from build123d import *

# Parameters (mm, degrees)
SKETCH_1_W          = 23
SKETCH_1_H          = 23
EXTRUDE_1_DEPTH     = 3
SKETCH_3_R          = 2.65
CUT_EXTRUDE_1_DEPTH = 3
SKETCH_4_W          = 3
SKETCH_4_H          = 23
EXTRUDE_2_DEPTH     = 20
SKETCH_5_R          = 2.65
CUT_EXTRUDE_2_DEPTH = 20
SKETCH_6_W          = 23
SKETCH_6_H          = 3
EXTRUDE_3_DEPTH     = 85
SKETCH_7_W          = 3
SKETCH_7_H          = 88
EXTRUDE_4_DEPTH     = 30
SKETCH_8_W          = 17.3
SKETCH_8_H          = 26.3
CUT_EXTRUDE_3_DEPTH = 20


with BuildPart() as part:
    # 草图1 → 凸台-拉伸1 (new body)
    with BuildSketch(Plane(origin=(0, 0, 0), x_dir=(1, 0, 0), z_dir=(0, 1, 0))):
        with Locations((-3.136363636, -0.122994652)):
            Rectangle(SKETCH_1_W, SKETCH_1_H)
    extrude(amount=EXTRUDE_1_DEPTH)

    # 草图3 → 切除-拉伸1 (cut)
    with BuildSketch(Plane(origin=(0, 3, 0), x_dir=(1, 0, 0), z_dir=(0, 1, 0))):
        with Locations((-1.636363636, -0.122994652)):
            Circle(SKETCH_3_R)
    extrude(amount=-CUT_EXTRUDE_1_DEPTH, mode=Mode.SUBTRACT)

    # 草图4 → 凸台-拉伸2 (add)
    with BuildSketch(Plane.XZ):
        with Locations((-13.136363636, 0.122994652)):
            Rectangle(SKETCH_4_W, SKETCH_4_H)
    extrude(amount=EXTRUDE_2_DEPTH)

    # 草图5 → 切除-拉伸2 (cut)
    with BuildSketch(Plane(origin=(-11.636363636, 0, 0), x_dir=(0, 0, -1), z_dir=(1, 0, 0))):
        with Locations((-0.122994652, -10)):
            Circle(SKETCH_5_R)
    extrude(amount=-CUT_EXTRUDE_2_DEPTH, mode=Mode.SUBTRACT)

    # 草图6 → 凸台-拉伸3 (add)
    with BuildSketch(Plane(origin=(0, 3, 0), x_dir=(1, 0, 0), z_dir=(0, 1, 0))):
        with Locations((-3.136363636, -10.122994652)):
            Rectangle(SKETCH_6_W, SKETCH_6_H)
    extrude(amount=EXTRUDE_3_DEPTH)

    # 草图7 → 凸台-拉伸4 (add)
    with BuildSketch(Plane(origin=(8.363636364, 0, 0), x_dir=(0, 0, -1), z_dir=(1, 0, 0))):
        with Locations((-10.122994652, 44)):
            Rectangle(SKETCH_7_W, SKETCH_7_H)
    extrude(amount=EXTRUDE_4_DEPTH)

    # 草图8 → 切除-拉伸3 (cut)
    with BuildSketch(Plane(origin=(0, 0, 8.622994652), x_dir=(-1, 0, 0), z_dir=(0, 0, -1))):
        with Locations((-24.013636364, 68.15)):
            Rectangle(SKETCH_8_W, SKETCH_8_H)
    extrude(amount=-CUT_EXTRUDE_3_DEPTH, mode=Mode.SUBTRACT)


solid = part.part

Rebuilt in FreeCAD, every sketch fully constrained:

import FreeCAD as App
import Part
import Sketcher

V = App.Vector
Q = App.Units.Quantity

doc = App.newDocument("Part")
body = doc.addObject("PartDesign::Body", "Body")

# Sketch on XZ plane
sketch1 = body.newObject("Sketcher::SketchObject", "Sketch")
sketch1.AttachmentSupport = (doc.getObject("XZ_Plane"), [""])
sketch1.MapMode = "FlatFace"
sketch1.addGeometry(Part.LineSegment(V(-14.636364, -11.377005, 0), V(-14.636364, 11.622995, 0)), False)
sketch1.addGeometry(Part.LineSegment(V(-14.636364, 11.622995, 0), V(8.363636, 11.622995, 0)), False)
sketch1.addGeometry(Part.LineSegment(V(8.363636, 11.622995, 0), V(8.363636, -11.377005, 0)), False)
sketch1.addGeometry(Part.LineSegment(V(8.363636, -11.377005, 0), V(-14.636364, -11.377005, 0)), False)
sketch1.addConstraint(Sketcher.Constraint("Coincident", 0, 2, 1, 1))
sketch1.addConstraint(Sketcher.Constraint("Coincident", 1, 2, 2, 1))
sketch1.addConstraint(Sketcher.Constraint("Coincident", 2, 2, 3, 1))
sketch1.addConstraint(Sketcher.Constraint("Coincident", 3, 2, 0, 1))
sketch1.addConstraint(Sketcher.Constraint("Vertical", 0))
sketch1.addConstraint(Sketcher.Constraint("Horizontal", 1))
sketch1.addConstraint(Sketcher.Constraint("Vertical", 2))
sketch1.addConstraint(Sketcher.Constraint("Horizontal", 3))
sketch1.addConstraint(Sketcher.Constraint("Equal", 3, 0))
sketch1.addConstraint(Sketcher.Constraint("DistanceX", 1, 1, 1, 2, Q("23 mm")))
sketch1.addConstraint(Sketcher.Constraint("DistanceX", 0, 2, -1, 1, Q("14.636364 mm")))
sketch1.addConstraint(Sketcher.Constraint("DistanceY", -1, 1, 0, 2, Q("11.622995 mm")))
pad1 = body.newObject("PartDesign::Pad", "Pad")
pad1.Profile = sketch1
pad1.Length = 3
pad1.Reversed = True

# Sketch on XZ plane
sketch2 = body.newObject("Sketcher::SketchObject", "Sketch001")
sketch2.AttachmentSupport = (doc.getObject("XZ_Plane"), [""])
sketch2.MapMode = "FlatFace"
sketch2.AttachmentOffset = App.Placement(V(0, 0, -3), App.Rotation())
sketch2.addGeometry(Part.Circle(V(-1.636364, 0.122995, 0), V(0, 0, 1), 2.65), False)
sketch2.addConstraint(Sketcher.Constraint("Diameter", 0, Q("5.3 mm")))
sketch2.addConstraint(Sketcher.Constraint("DistanceX", 0, 3, -1, 1, Q("1.636364 mm")))
sketch2.addConstraint(Sketcher.Constraint("DistanceY", -1, 1, 0, 3, Q("0.122995 mm")))
pocket1 = body.newObject("PartDesign::Pocket", "Pocket")
pocket1.Profile = sketch2
pocket1.Length = 3
pocket1.Reversed = True

# Sketch on XZ plane
sketch3 = body.newObject("Sketcher::SketchObject", "Sketch002")
sketch3.AttachmentSupport = (doc.getObject("XZ_Plane"), [""])
sketch3.MapMode = "FlatFace"
sketch3.addGeometry(Part.LineSegment(V(-14.636364, 11.622995, 0), V(-14.636364, -11.377005, 0)), False)
sketch3.addGeometry(Part.LineSegment(V(-14.636364, -11.377005, 0), V(-11.636364, -11.377005, 0)), False)
sketch3.addGeometry(Part.LineSegment(V(-11.636364, -11.377005, 0), V(-11.636364, 11.622995, 0)), False)
sketch3.addGeometry(Part.LineSegment(V(-11.636364, 11.622995, 0), V(-14.636364, 11.622995, 0)), False)
sketch3.addConstraint(Sketcher.Constraint("Coincident", 0, 2, 1, 1))
sketch3.addConstraint(Sketcher.Constraint("Coincident", 1, 2, 2, 1))
sketch3.addConstraint(Sketcher.Constraint("Coincident", 2, 2, 3, 1))
sketch3.addConstraint(Sketcher.Constraint("Coincident", 3, 2, 0, 1))
sketch3.addConstraint(Sketcher.Constraint("Vertical", 0))
sketch3.addConstraint(Sketcher.Constraint("Horizontal", 1))
sketch3.addConstraint(Sketcher.Constraint("Vertical", 2))
sketch3.addConstraint(Sketcher.Constraint("Horizontal", 3))
sketch3.addConstraint(Sketcher.Constraint("DistanceX", 1, 1, 1, 2, Q("3 mm")))
sketch3.addConstraint(Sketcher.Constraint("DistanceY", 0, 2, 0, 1, Q("23 mm")))
sketch3.addConstraint(Sketcher.Constraint("DistanceX", 0, 2, -1, 1, Q("14.636364 mm")))
sketch3.addConstraint(Sketcher.Constraint("DistanceY", 0, 2, -1, 1, Q("11.377005 mm")))
pad2 = body.newObject("PartDesign::Pad", "Pad001")
pad2.Profile = sketch3
pad2.Length = 20

# Sketch on YZ plane
sketch4 = body.newObject("Sketcher::SketchObject", "Sketch003")
sketch4.AttachmentSupport = (doc.getObject("YZ_Plane"), [""])
sketch4.MapMode = "FlatFace"
sketch4.AttachmentOffset = App.Placement(V(0, 0, -11.636364), App.Rotation())
sketch4.addGeometry(Part.Circle(V(-10, 0.122995, 0), V(0, 0, 1), 2.65), False)
sketch4.addConstraint(Sketcher.Constraint("Diameter", 0, Q("5.3 mm")))
sketch4.addConstraint(Sketcher.Constraint("DistanceX", 0, 3, -1, 1, Q("10 mm")))
sketch4.addConstraint(Sketcher.Constraint("DistanceY", -1, 1, 0, 3, Q("0.122995 mm")))
pocket2 = body.newObject("PartDesign::Pocket", "Pocket001")
pocket2.Profile = sketch4
pocket2.Length = 20

# Sketch on XZ plane
sketch5 = body.newObject("Sketcher::SketchObject", "Sketch004")
sketch5.AttachmentSupport = (doc.getObject("XZ_Plane"), [""])
sketch5.MapMode = "FlatFace"
sketch5.AttachmentOffset = App.Placement(V(0, 0, -3), App.Rotation())
sketch5.addGeometry(Part.LineSegment(V(-14.636364, 8.622995, 0), V(-14.636364, 11.622995, 0)), False)
sketch5.addGeometry(Part.LineSegment(V(-14.636364, 11.622995, 0), V(8.363636, 11.622995, 0)), False)
sketch5.addGeometry(Part.LineSegment(V(8.363636, 11.622995, 0), V(8.363636, 8.622995, 0)), False)
sketch5.addGeometry(Part.LineSegment(V(8.363636, 8.622995, 0), V(-14.636364, 8.622995, 0)), False)
sketch5.addConstraint(Sketcher.Constraint("Coincident", 0, 2, 1, 1))
sketch5.addConstraint(Sketcher.Constraint("Coincident", 1, 2, 2, 1))
sketch5.addConstraint(Sketcher.Constraint("Coincident", 2, 2, 3, 1))
sketch5.addConstraint(Sketcher.Constraint("Coincident", 3, 2, 0, 1))
sketch5.addConstraint(Sketcher.Constraint("Vertical", 0))
sketch5.addConstraint(Sketcher.Constraint("Horizontal", 1))
sketch5.addConstraint(Sketcher.Constraint("Vertical", 2))
sketch5.addConstraint(Sketcher.Constraint("Horizontal", 3))
sketch5.addConstraint(Sketcher.Constraint("DistanceX", 1, 1, 1, 2, Q("23 mm")))
sketch5.addConstraint(Sketcher.Constraint("DistanceY", 0, 1, 0, 2, Q("3 mm")))
sketch5.addConstraint(Sketcher.Constraint("DistanceX", 0, 2, -1, 1, Q("14.636364 mm")))
sketch5.addConstraint(Sketcher.Constraint("DistanceY", -1, 1, 0, 2, Q("11.622995 mm")))
pad3 = body.newObject("PartDesign::Pad", "Pad002")
pad3.Profile = sketch5
pad3.Length = 85
pad3.Reversed = True

# Sketch on YZ plane
sketch6 = body.newObject("Sketcher::SketchObject", "Sketch005")
sketch6.AttachmentSupport = (doc.getObject("YZ_Plane"), [""])
sketch6.MapMode = "FlatFace"
sketch6.AttachmentOffset = App.Placement(V(0, 0, 8.363636), App.Rotation())
sketch6.addGeometry(Part.LineSegment(V(88, 11.622995, 0), V(0, 11.622995, 0)), False)
sketch6.addGeometry(Part.LineSegment(V(0, 11.622995, 0), V(0, 8.622995, 0)), False)
sketch6.addGeometry(Part.LineSegment(V(0, 8.622995, 0), V(88, 8.622995, 0)), False)
sketch6.addGeometry(Part.LineSegment(V(88, 8.622995, 0), V(88, 11.622995, 0)), False)
sketch6.addConstraint(Sketcher.Constraint("Coincident", 0, 2, 1, 1))
sketch6.addConstraint(Sketcher.Constraint("Coincident", 1, 2, 2, 1))
sketch6.addConstraint(Sketcher.Constraint("Coincident", 2, 2, 3, 1))
sketch6.addConstraint(Sketcher.Constraint("Coincident", 3, 2, 0, 1))
sketch6.addConstraint(Sketcher.Constraint("Horizontal", 0))
sketch6.addConstraint(Sketcher.Constraint("Vertical", 1))
sketch6.addConstraint(Sketcher.Constraint("Horizontal", 2))
sketch6.addConstraint(Sketcher.Constraint("Vertical", 3))
sketch6.addConstraint(Sketcher.Constraint("PointOnObject", 0, 2, -2))
sketch6.addConstraint(Sketcher.Constraint("DistanceX", 0, 2, 0, 1, Q("88 mm")))
sketch6.addConstraint(Sketcher.Constraint("DistanceY", 1, 2, 1, 1, Q("3 mm")))
sketch6.addConstraint(Sketcher.Constraint("DistanceY", -1, 1, 0, 2, Q("11.622995 mm")))
pad4 = body.newObject("PartDesign::Pad", "Pad003")
pad4.Profile = sketch6
pad4.Length = 30

# Sketch on XY plane
sketch7 = body.newObject("Sketcher::SketchObject", "Sketch006")
sketch7.AttachmentSupport = (doc.getObject("XY_Plane"), [""])
sketch7.MapMode = "FlatFace"
sketch7.AttachmentOffset = App.Placement(V(0, 0, 8.622995), App.Rotation())
sketch7.addGeometry(Part.LineSegment(V(32.663636, 81.3, 0), V(32.663636, 55, 0)), False)
sketch7.addGeometry(Part.LineSegment(V(32.663636, 55, 0), V(15.363636, 55, 0)), False)
sketch7.addGeometry(Part.LineSegment(V(15.363636, 55, 0), V(15.363636, 81.3, 0)), False)
sketch7.addGeometry(Part.LineSegment(V(15.363636, 81.3, 0), V(32.663636, 81.3, 0)), False)
sketch7.addConstraint(Sketcher.Constraint("Coincident", 0, 2, 1, 1))
sketch7.addConstraint(Sketcher.Constraint("Coincident", 1, 2, 2, 1))
sketch7.addConstraint(Sketcher.Constraint("Coincident", 2, 2, 3, 1))
sketch7.addConstraint(Sketcher.Constraint("Coincident", 3, 2, 0, 1))
sketch7.addConstraint(Sketcher.Constraint("Vertical", 0))
sketch7.addConstraint(Sketcher.Constraint("Horizontal", 1))
sketch7.addConstraint(Sketcher.Constraint("Vertical", 2))
sketch7.addConstraint(Sketcher.Constraint("Horizontal", 3))
sketch7.addConstraint(Sketcher.Constraint("DistanceX", 1, 2, 1, 1, Q("17.3 mm")))
sketch7.addConstraint(Sketcher.Constraint("DistanceY", 0, 2, 0, 1, Q("26.3 mm")))
sketch7.addConstraint(Sketcher.Constraint("DistanceY", -1, 1, 0, 2, Q("55 mm")))
sketch7.addConstraint(Sketcher.Constraint("DistanceX", -1, 1, 0, 2, Q("32.663636 mm")))
pocket3 = body.newObject("PartDesign::Pocket", "Pocket002")
pocket3.Profile = sketch7
pocket3.Length = 20
pocket3.Reversed = True

doc.recompute()
